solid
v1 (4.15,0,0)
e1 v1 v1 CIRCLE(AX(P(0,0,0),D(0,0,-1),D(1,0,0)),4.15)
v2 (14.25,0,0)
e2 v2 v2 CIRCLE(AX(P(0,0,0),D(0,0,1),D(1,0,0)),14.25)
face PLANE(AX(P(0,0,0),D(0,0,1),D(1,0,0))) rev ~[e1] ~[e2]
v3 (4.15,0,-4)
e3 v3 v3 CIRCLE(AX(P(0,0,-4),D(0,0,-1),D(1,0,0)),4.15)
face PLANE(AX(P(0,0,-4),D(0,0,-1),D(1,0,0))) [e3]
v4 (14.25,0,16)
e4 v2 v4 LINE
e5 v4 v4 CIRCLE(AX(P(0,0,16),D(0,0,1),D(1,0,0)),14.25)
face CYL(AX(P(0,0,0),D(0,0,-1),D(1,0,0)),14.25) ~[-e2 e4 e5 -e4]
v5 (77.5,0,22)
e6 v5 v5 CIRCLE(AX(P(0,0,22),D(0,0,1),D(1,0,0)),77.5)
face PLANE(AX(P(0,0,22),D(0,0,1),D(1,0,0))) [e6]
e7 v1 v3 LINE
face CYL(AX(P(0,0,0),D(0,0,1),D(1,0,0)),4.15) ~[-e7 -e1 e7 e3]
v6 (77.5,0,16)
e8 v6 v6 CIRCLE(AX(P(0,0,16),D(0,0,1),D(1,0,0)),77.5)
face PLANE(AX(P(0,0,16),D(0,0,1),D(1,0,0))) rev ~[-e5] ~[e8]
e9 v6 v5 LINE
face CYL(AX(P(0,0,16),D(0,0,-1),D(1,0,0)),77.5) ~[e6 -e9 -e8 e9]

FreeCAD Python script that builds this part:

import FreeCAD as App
import Part
import Sketcher
from FreeCAD import Vector

doc = App.newDocument("Part")
body = doc.addObject("PartDesign::Body", "Body")

sketch1 = body.newObject("Sketcher::SketchObject", "Sketch")
sketch1.AttachmentSupport = (doc.getObject("XY_Plane"), [""])
sketch1.MapMode = "FlatFace"
sketch1.addGeometry(Part.Circle(Vector(0, 0, 0), Vector(0, 0, 1), 14.25), False)
sketch1.addGeometry(Part.Circle(Vector(0, 0, 0), Vector(0, 0, 1), 2.5), False)
sketch1.addConstraint(Sketcher.Constraint("Coincident", 0, 3, -1, 1))
sketch1.addConstraint(Sketcher.Constraint("Coincident", 1, 3, -1, 1))
sketch1.addConstraint(Sketcher.Constraint("Diameter", 1, 5.0))
sketch1.addConstraint(Sketcher.Constraint("Diameter", 0, 28.5))
pad1 = body.newObject("PartDesign::Pad", "Pad")
pad1.Profile = sketch1
pad1.Length = 16

sketch2 = body.newObject("Sketcher::SketchObject", "Sketch001")
sketch2.AttachmentSupport = (doc.getObject("XY_Plane"), [""])
sketch2.MapMode = "FlatFace"
sketch2.addGeometry(Part.Circle(Vector(0, 0, 0), Vector(0, 0, 1), 2.5), False)
sketch2.addConstraint(Sketcher.Constraint("Coincident", 0, 3, -1, 1))
sketch2.addConstraint(Sketcher.Constraint("Diameter", 0, 5.0))
pad2 = body.newObject("PartDesign::Pad", "Pad001")
pad2.Profile = sketch2
pad2.Length = 19

sketch3 = body.newObject("Sketcher::SketchObject", "Sketch002")
sketch3.AttachmentSupport = (doc.getObject("XY_Plane"), [""])
sketch3.MapMode = "FlatFace"
sketch3.AttachmentOffset = App.Placement(Vector(0, 0, 16), App.Rotation())
sketch3.addGeometry(Part.Circle(Vector(0, 0, 0), Vector(0, 0, 1), 77.5), False)
sketch3.addConstraint(Sketcher.Constraint("Coincident", 0, 3, -1, 1))
sketch3.addConstraint(Sketcher.Constraint("Diameter", 0, 155.0))
pad3 = body.newObject("PartDesign::Pad", "Pad002")
pad3.Profile = sketch3
pad3.Length = 6

sketch4 = body.newObject("Sketcher::SketchObject", "Sketch003")
sketch4.AttachmentSupport = (doc.getObject("XY_Plane"), [""])
sketch4.MapMode = "FlatFace"
sketch4.addGeometry(Part.Circle(Vector(0, 0, 0), Vector(0, 0, 1), 4.15), False)
sketch4.addConstraint(Sketcher.Constraint("Coincident", 0, 3, -1, 1))
sketch4.addConstraint(Sketcher.Constraint("Diameter", 0, 8.3))
pad4 = body.newObject("PartDesign::Pad", "Pad003")
pad4.Profile = sketch4
pad4.Length = 4
pad4.Reversed = True

doc.recompute()
